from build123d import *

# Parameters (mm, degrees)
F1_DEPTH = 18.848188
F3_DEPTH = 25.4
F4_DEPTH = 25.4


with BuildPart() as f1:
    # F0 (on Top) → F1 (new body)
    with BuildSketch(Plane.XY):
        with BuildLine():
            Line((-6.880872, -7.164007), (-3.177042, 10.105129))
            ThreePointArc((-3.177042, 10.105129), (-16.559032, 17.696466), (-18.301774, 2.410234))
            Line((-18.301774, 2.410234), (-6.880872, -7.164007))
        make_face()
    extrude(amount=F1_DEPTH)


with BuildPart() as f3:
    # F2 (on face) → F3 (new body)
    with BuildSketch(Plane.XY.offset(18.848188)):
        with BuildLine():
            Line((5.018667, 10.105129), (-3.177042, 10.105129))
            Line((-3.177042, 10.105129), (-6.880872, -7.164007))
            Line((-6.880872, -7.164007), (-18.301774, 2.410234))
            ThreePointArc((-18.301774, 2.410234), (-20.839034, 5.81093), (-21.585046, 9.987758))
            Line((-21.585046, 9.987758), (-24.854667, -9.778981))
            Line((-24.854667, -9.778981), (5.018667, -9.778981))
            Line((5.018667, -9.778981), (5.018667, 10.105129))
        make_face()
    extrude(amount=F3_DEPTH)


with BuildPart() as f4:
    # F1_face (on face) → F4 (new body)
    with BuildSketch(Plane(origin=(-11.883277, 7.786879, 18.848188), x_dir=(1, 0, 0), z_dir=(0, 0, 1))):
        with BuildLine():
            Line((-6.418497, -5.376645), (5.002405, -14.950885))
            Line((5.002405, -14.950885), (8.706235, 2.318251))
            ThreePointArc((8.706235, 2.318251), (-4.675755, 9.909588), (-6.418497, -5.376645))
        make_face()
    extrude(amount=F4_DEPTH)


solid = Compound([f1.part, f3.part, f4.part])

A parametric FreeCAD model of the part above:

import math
import FreeCAD as App
import Part
import Sketcher
Q = App.Units.Quantity

doc = App.newDocument("Part")
body = doc.addObject("PartDesign::Body", "Body")

sketch1 = body.newObject("Sketcher::SketchObject", "Sketch")
sketch1.AttachmentSupport = (doc.getObject("XY_Plane"), [""])
sketch1.MapMode = "FlatFace"
sketch1.addGeometry([
    Part.LineSegment(App.Vector(-6.880872, -7.164007, 0), App.Vector(-3.177042, 10.105129, 0)),
    Part.ArcOfCircle(Part.Circle(App.Vector(-12.377415, 9.477272, 0), App.Vector(0, 0, 1), 9.221771), math.radians(3.903955), math.radians(230.026607)),
    Part.LineSegment(App.Vector(-18.301774, 2.410234, 0), App.Vector(-6.880872, -7.164007, 0)),
], False)
sketch1.addConstraint([
    Sketcher.Constraint("Coincident", 0, 2, 1, 1),
    Sketcher.Constraint("Tangent", 1, 2, 2, 1),
    Sketcher.Constraint("Coincident", 2, 2, 0, 1),
    Sketcher.Constraint("Radius", 1, Q("9.221771 mm")),
    Sketcher.Constraint("DistanceX", 1, 2, 2, 2, Q("11.420902 mm")),
    Sketcher.Constraint("DistanceY", -1, 1, 0, 2, Q("10.105129 mm")),
    Sketcher.Constraint("DistanceX", 1, 2, 1, 3, Q("5.924359 mm")),
    Sketcher.Constraint("DistanceX", 1, 2, 0, 2, Q("15.124732 mm")),
    Sketcher.Constraint("DistanceX", 1, 3, -1, 1, Q("12.377415 mm")),
])
pad1 = body.newObject("PartDesign::Pad", "Pad")
pad1.Profile = sketch1
pad1.Length = 18.848188
body2 = doc.addObject("PartDesign::Body", "Body001")

sketch2 = body2.newObject("Sketcher::SketchObject", "Sketch001")
sketch2.AttachmentSupport = (doc.getObject("XY_Plane001"), [""])
sketch2.MapMode = "FlatFace"
sketch2.AttachmentOffset = App.Placement(App.Vector(0, 0, 18.848188), App.Rotation())
sketch2.addGeometry([
    Part.LineSegment(App.Vector(5.018667, 10.105129, 0), App.Vector(-3.177042, 10.105129, 0)),
    Part.LineSegment(App.Vector(-3.177042, 10.105129, 0), App.Vector(-6.880872, -7.164007, 0)),
    Part.LineSegment(App.Vector(-6.880872, -7.164007, 0), App.Vector(-18.301774, 2.410234, 0)),
    Part.ArcOfCircle(Part.Circle(App.Vector(-12.377415, 9.477273, 0), App.Vector(0, 0, 1), 9.221771), math.radians(176.826681), math.radians(230.026608)),
    Part.LineSegment(App.Vector(-21.585046, 9.987758, 0), App.Vector(-24.854667, -9.778981, 0)),
    Part.LineSegment(App.Vector(-24.854667, -9.778981, 0), App.Vector(5.018667, -9.778981, 0)),
    Part.LineSegment(App.Vector(5.018667, -9.778981, 0), App.Vector(5.018667, 10.105129, 0)),
], False)
sketch2.addConstraint([
    Sketcher.Constraint("Coincident", 0, 2, 1, 1),
    Sketcher.Constraint("Coincident", 1, 2, 2, 1),
    Sketcher.Constraint("Coincident", 2, 2, 3, 2),
    Sketcher.Constraint("Coincident", 3, 1, 4, 1),
    Sketcher.Constraint("Coincident", 4, 2, 5, 1),
    Sketcher.Constraint("Coincident", 5, 2, 6, 1),
    Sketcher.Constraint("Coincident", 6, 2, 0, 1),
    Sketcher.Constraint("Horizontal", 0),
    Sketcher.Constraint("Horizontal", 5),
    Sketcher.Constraint("Vertical", 6),
    Sketcher.Constraint("Radius", 3, Q("9.221771 mm")),
    Sketcher.Constraint("DistanceX", 3, 3, -1, 1, Q("0.4872998 in")),
    Sketcher.Constraint("DistanceX", 0, 2, 0, 1, Q("8.195709 mm")),
    Sketcher.Constraint("DistanceY", 6, 1, 6, 2, Q("19.88411 mm")),
    Sketcher.Constraint("Distance", 4, Q("20.035329 mm")),
    Sketcher.Constraint("DistanceX", 5, 1, 5, 2, Q("29.873334 mm")),
    Sketcher.Constraint("DistanceY", -1, 1, 0, 2, Q("10.105129 mm")),
    Sketcher.Constraint("DistanceY", -1, 1, 3, 1, Q("9.987758 mm")),
    Sketcher.Constraint("DistanceY", 1, 2, 3, 3, Q("16.64128 mm")),
    Sketcher.Constraint("DistanceX", 1, 2, 0, 2, Q("3.70383 mm")),
    Sketcher.Constraint("DistanceX", 2, 2, 3, 3, Q("5.924359 mm")),
    Sketcher.Constraint("DistanceX", 3, 1, 3, 3, Q("9.207631 mm")),
])
pad2 = body2.newObject("PartDesign::Pad", "Pad001")
pad2.Profile = sketch2
pad2.Length = Q("1 in")
body3 = doc.addObject("PartDesign::Body", "Body002")

sketch3 = body3.newObject("Sketcher::SketchObject", "Sketch002")
sketch3.AttachmentSupport = (doc.getObject("XY_Plane002"), [""])
sketch3.MapMode = "FlatFace"
sketch3.AttachmentOffset = App.Placement(App.Vector(0, 0, 18.848188), App.Rotation())
sketch3.addGeometry([
    Part.LineSegment(App.Vector(-18.301774, 2.410234, 0), App.Vector(-6.880872, -7.164006, 0)),
    Part.LineSegment(App.Vector(-6.880872, -7.164006, 0), App.Vector(-3.177042, 10.10513, 0)),
    Part.ArcOfCircle(Part.Circle(App.Vector(-12.377415, 9.477273, 0), App.Vector(0, 0, 1), 9.221771), math.radians(3.903958), math.radians(230.02661)),
], False)
sketch3.addConstraint([
    Sketcher.Constraint("Coincident", 0, 2, 1, 1),
    Sketcher.Constraint("Coincident", 1, 2, 2, 1),
    Sketcher.Constraint("Tangent", 2, 2, 0, 1),
    Sketcher.Constraint("Radius", 2, Q("9.221771 mm")),
    Sketcher.Constraint("DistanceX", 2, 3, -1, 1, Q("0.4872998 in")),
    Sketcher.Constraint("DistanceX", 2, 2, 0, 2, Q("11.420902 mm")),
    Sketcher.Constraint("DistanceY", -1, 1, 1, 2, Q("10.10513 mm")),
    Sketcher.Constraint("DistanceY", 0, 2, 2, 3, Q("16.641279 mm")),
    Sketcher.Constraint("DistanceX", 0, 2, 1, 2, Q("3.70383 mm")),
])
pad3 = body3.newObject("PartDesign::Pad", "Pad002")
pad3.Profile = sketch3
pad3.Length = Q("1 in")

doc.recompute()
